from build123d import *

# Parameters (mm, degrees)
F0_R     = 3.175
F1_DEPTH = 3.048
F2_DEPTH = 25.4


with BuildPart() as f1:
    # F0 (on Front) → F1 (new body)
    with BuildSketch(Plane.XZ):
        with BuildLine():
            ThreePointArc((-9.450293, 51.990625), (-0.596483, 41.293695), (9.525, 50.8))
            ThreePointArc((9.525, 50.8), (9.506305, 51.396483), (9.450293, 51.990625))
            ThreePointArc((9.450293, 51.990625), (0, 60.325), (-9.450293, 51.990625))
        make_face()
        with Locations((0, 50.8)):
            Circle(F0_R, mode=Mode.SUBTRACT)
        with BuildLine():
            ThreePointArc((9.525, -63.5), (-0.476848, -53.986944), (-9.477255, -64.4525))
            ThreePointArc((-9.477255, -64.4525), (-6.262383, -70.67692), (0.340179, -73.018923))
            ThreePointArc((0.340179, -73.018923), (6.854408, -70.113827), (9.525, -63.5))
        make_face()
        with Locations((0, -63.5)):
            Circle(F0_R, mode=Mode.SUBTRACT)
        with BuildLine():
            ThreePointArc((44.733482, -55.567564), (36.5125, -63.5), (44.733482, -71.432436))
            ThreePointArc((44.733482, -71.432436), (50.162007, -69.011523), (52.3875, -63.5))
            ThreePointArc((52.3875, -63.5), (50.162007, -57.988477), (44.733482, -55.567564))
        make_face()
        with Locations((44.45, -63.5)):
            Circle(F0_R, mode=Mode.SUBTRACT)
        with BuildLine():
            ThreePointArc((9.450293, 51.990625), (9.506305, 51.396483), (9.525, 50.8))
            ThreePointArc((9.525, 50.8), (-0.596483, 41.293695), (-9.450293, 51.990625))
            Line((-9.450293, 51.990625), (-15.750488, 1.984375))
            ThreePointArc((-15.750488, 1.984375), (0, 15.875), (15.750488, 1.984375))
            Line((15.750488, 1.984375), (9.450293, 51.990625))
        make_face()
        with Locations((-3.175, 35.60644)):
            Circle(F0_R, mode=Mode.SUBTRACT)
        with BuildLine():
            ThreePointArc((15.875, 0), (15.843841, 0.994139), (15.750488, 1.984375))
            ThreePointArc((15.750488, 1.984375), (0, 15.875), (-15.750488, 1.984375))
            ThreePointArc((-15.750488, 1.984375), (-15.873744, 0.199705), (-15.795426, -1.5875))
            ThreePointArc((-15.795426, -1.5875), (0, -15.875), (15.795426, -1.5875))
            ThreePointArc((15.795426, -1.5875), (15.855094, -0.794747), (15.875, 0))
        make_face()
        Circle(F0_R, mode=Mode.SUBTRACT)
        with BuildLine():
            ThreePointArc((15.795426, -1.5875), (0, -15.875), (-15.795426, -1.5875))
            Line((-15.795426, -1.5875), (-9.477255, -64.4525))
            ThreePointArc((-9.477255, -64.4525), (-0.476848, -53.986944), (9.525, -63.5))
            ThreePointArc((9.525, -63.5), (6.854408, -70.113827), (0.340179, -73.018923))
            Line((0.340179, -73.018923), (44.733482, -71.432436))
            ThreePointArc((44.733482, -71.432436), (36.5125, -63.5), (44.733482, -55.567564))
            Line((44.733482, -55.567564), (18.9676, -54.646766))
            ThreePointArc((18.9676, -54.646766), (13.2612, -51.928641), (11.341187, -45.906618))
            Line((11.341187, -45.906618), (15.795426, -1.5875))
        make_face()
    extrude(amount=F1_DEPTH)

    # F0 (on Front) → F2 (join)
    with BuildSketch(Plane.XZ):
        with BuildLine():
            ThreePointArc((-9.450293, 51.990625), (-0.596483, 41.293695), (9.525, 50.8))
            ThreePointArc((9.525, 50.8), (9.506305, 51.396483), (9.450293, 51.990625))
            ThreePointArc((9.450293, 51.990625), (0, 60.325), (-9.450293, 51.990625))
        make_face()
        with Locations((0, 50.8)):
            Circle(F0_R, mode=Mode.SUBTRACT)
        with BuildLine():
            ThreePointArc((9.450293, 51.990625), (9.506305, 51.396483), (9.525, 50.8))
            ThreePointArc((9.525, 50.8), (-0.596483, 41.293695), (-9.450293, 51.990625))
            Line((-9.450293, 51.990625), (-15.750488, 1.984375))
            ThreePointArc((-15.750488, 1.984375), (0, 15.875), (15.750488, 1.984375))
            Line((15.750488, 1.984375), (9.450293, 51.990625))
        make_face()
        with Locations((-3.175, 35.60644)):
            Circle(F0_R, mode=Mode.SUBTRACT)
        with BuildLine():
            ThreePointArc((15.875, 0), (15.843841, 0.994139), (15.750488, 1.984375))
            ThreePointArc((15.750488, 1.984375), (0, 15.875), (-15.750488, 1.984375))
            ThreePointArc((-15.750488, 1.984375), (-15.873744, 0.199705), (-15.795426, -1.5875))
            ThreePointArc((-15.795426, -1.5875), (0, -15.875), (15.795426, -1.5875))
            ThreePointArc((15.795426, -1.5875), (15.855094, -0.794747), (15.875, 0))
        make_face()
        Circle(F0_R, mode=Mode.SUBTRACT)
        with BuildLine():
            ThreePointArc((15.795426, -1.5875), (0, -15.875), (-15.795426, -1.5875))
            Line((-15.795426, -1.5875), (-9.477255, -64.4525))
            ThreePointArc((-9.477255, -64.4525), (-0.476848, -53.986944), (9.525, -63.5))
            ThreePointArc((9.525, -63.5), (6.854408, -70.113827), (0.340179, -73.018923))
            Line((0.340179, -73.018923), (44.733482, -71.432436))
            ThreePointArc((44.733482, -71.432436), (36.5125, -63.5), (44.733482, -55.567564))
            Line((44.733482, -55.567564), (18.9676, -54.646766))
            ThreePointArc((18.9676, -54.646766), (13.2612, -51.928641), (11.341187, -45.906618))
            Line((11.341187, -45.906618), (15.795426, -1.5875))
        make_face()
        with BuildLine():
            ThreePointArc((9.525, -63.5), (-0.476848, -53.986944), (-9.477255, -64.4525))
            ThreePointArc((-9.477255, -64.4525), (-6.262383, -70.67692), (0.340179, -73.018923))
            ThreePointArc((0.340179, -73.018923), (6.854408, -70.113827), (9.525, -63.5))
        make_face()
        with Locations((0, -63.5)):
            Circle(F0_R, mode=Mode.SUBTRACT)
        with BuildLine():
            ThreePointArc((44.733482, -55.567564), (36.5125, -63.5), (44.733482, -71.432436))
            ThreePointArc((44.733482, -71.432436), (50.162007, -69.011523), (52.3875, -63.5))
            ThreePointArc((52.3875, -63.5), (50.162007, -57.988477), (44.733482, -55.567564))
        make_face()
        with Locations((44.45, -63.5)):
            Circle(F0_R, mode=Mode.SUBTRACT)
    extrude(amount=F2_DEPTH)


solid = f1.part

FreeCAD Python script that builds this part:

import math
import FreeCAD as App
import Part
import Sketcher
from FreeCAD import Vector
Q = App.Units.Quantity

doc = App.newDocument("Part")
body = doc.addObject("PartDesign::Body", "Body")

sketch1 = doc.addObject("Sketcher::SketchObject", "Sketch")
body.addObject(sketch1)
sketch1.AttachmentSupport = (doc.XZ_Plane, [""])
sketch1.MapMode = "FlatFace"
sketch1.addGeometry([
    Part.ArcOfCircle(Part.Circle(Vector(0, 50.8, 0), Vector(0, 0, 1), 9.525), math.radians(7.180756), math.radians(172.819244)),
    Part.LineSegment(Vector(-9.450293, 51.990625, 0), Vector(-15.750488, 1.984375, 0)),
    Part.ArcOfCircle(Part.Circle(Vector(-0.000015, -0.000003, 0), Vector(0, 0, 1), 15.874985), math.radians(172.819227), math.radians(185.739165)),
    Part.LineSegment(Vector(-15.795426, -1.5875, 0), Vector(-9.477255, -64.4525, 0)),
    Part.ArcOfCircle(Part.Circle(Vector(-0.000001, -63.500001, 0), Vector(0, 0, 1), 9.524999), math.radians(-174.260832), math.radians(-87.953281)),
    Part.LineSegment(Vector(0.340179, -73.018923, 0), Vector(44.733482, -71.432436, 0)),
    Part.ArcOfCircle(Part.Circle(Vector(44.450001, -63.500001, 0), Vector(0, 0, 1), 7.937499), math.radians(-87.953294), math.radians(0.000005)),
    Part.ArcOfCircle(Part.Circle(Vector(44.450001, -63.499999, 0), Vector(0, 0, 1), 7.937499), math.radians(-0.000005), math.radians(87.953294)),
    Part.LineSegment(Vector(44.733482, -55.567564, 0), Vector(18.9676, -54.646766, 0)),
    Part.ArcOfCircle(Part.Circle(Vector(19.251535, -46.701639, 0), Vector(0, 0, 1), 7.950199), math.radians(174.260822), math.radians(267.953292)),
    Part.LineSegment(Vector(11.341187, -45.906618, 0), Vector(15.795426, -1.5875, 0)),
    Part.ArcOfCircle(Part.Circle(Vector(-0.000084, 0, 0), Vector(0, 0, 1), 15.875084), math.radians(-5.73914), math.radians(0)),
    Part.ArcOfCircle(Part.Circle(Vector(-0.000171, -0.000013, 0), Vector(0, 0, 1), 15.875171), math.radians(0.000047), math.radians(7.180725)),
    Part.LineSegment(Vector(15.750488, 1.984375, 0), Vector(9.450293, 51.990625, 0)),
    Part.Circle(Vector(0, 0, 0), Vector(0, 0, 1), 3.175),
    Part.Circle(Vector(-3.175, 35.60644, 0), Vector(0, 0, 1), 3.175),
    Part.Circle(Vector(0, 50.8, 0), Vector(0, 0, 1), 3.175),
    Part.Circle(Vector(0, -63.5, 0), Vector(0, 0, 1), 3.175),
    Part.Circle(Vector(44.45, -63.5, 0), Vector(0, 0, 1), 3.175),
], False)
sketch1.addConstraint([
    Sketcher.Constraint("Coincident", 0, 2, 1, 1),
    Sketcher.Constraint("Coincident", 1, 2, 2, 1),
    Sketcher.Constraint("Coincident", 2, 2, 3, 1),
    Sketcher.Constraint("Coincident", 3, 2, 4, 1),
    Sketcher.Constraint("Coincident", 4, 2, 5, 1),
    Sketcher.Constraint("Coincident", 5, 2, 6, 1),
    Sketcher.Constraint("Coincident", 6, 2, 7, 1),
    Sketcher.Constraint("Coincident", 7, 2, 8, 1),
    Sketcher.Constraint("Coincident", 8, 2, 9, 2),
    Sketcher.Constraint("Coincident", 9, 1, 10, 1),
    Sketcher.Constraint("Coincident", 10, 2, 11, 1),
    Sketcher.Constraint("Coincident", 11, 2, 12, 1),
    Sketcher.Constraint("Coincident", 12, 2, 13, 1),
    Sketcher.Constraint("Coincident", 13, 2, 0, 1),
    Sketcher.Constraint("Coincident", 14, 3, -1, 1),
    Sketcher.Constraint("Coincident", 7, 3, 6, 3),
    Sketcher.Constraint("Coincident", 16, 3, 0, 3),
    Sketcher.Constraint("Coincident", 17, 3, 4, 3),
    Sketcher.Constraint("Coincident", 18, 3, 6, 3),
    Sketcher.Constraint("PointOnObject", 0, 3, -2),
    Sketcher.Constraint("PointOnObject", 4, 3, -2),
    Sketcher.Constraint("PointOnObject", 11, 3, -1),
    Sketcher.Constraint("PointOnObject", 11, 2, -1),
    Sketcher.Constraint("Diameter", 14, Q("0.25 in")),
    Sketcher.Constraint("Diameter", 15, Q("0.25 in")),
    Sketcher.Constraint("Diameter", 16, Q("0.25 in")),
    Sketcher.Constraint("Diameter", 17, Q("0.25 in")),
    Sketcher.Constraint("Diameter", 18, Q("0.25 in")),
    Sketcher.Constraint("DistanceY", -1, 1, 0, 3, Q("2 in")),
    Sketcher.Constraint("Radius", 0, Q("0.375 in")),
    Sketcher.Constraint("Radius", 4, Q("0.375 in")),
    Sketcher.Constraint("Radius", 6, Q("0.3125 in")),
    Sketcher.Constraint("Radius", 9, Q("0.313 in")),
    Sketcher.Constraint("DistanceY", 2, 3, 0, 3, Q("2.0000001 in")),
    Sketcher.Constraint("DistanceY", 4, 3, -1, 1, Q("2.5 in")),
    Sketcher.Constraint("DistanceY", 6, 3, -1, 1, Q("2.5 in")),
    Sketcher.Constraint("DistanceY", 6, 2, -1, 1, Q("2.5 in")),
    Sketcher.Constraint("DistanceX", -1, 1, 6, 3, Q("1.75 in")),
    Sketcher.Constraint("DistanceX", 15, 3, -1, 1, Q("0.125 in")),
    Sketcher.Constraint("DistanceY", -1, 1, 0, 2, Q("2.046875 in")),
    Sketcher.Constraint("DistanceY", -1, 1, 1, 2, Q("0.078125 in")),
    Sketcher.Constraint("DistanceY", 2, 2, -1, 1, Q("0.0625 in")),
    Sketcher.Constraint("DistanceY", 10, 2, -1, 1, Q("0.0625 in")),
    Sketcher.Constraint("DistanceX", -1, 1, 11, 2, Q("0.625 in")),
    Sketcher.Constraint("DistanceY", -1, 1, 12, 2, Q("0.078125 in")),
    Sketcher.Constraint("DistanceY", -1, 1, 13, 2, Q("2.046875 in")),
    Sketcher.Constraint("Radius", 12, Q("15.875171 mm")),
    Sketcher.Constraint("DistanceY", 3, 2, -1, 1, Q("2.5375 in")),
    Sketcher.Constraint("Radius", 2, Q("15.874985 mm")),
    Sketcher.Constraint("Radius", 11, Q("15.875084 mm")),
    Sketcher.Constraint("DistanceY", 9, 3, 9, 1, Q("0.0313 in")),
    Sketcher.Constraint("DistanceX", -1, 1, 8, 2, Q("18.9676 mm")),
    Sketcher.Constraint("Distance", 8, Q("25.78233 mm")),
    Sketcher.Constraint("Distance", 10, Q("44.54239 mm")),
    Sketcher.Constraint("DistanceY", 9, 3, -1, 1, Q("46.701639 mm")),
    Sketcher.Constraint("DistanceY", -1, 1, 15, 3, Q("35.60644 mm")),
    Sketcher.Constraint("DistanceX", 1, 2, -1, 1, Q("15.750488 mm")),
    Sketcher.Constraint("DistanceX", -1, 1, 4, 2, Q("0.340179 mm")),
    Sketcher.Constraint("DistanceX", -1, 1, 12, 2, Q("15.750488 mm")),
    Sketcher.Constraint("DistanceX", 6, 3, 5, 2, Q("0.283481 mm")),
])
pad1 = doc.addObject("PartDesign::Pad", "Pad")
body.addObject(pad1)
pad1.Profile = sketch1
pad1.Length = Q("0.12 in")

sketch2 = doc.addObject("Sketcher::SketchObject", "Sketch001")
body.addObject(sketch2)
sketch2.AttachmentSupport = (doc.XZ_Plane, [""])
sketch2.MapMode = "FlatFace"
sketch2.addGeometry([
    Part.ArcOfCircle(Part.Circle(Vector(0, 50.8, 0), Vector(0, 0, 1), 9.525), math.radians(7.180756), math.radians(172.819244)),
    Part.LineSegment(Vector(-9.450293, 51.990625, 0), Vector(-15.750488, 1.984375, 0)),
    Part.ArcOfCircle(Part.Circle(Vector(-0.000015, -0.000003, 0), Vector(0, 0, 1), 15.874985), math.radians(172.819227), math.radians(185.739165)),
    Part.LineSegment(Vector(-15.795426, -1.5875, 0), Vector(-9.477255, -64.4525, 0)),
    Part.ArcOfCircle(Part.Circle(Vector(-0.000001, -63.500001, 0), Vector(0, 0, 1), 9.524999), math.radians(-174.260832), math.radians(-87.953281)),
    Part.LineSegment(Vector(0.340179, -73.018923, 0), Vector(44.733482, -71.432436, 0)),
    Part.ArcOfCircle(Part.Circle(Vector(44.450001, -63.500001, 0), Vector(0, 0, 1), 7.937499), math.radians(-87.953294), math.radians(0.000005)),
    Part.ArcOfCircle(Part.Circle(Vector(44.450001, -63.499999, 0), Vector(0, 0, 1), 7.937499), math.radians(-0.000005), math.radians(87.953294)),
    Part.LineSegment(Vector(44.733482, -55.567564, 0), Vector(18.9676, -54.646766, 0)),
    Part.ArcOfCircle(Part.Circle(Vector(19.251535, -46.701639, 0), Vector(0, 0, 1), 7.950199), math.radians(174.260822), math.radians(267.953292)),
    Part.LineSegment(Vector(11.341187, -45.906618, 0), Vector(15.795426, -1.5875, 0)),
    Part.ArcOfCircle(Part.Circle(Vector(-0.000084, 0, 0), Vector(0, 0, 1), 15.875084), math.radians(-5.73914), math.radians(0)),
    Part.ArcOfCircle(Part.Circle(Vector(-0.000171, -0.000013, 0), Vector(0, 0, 1), 15.875171), math.radians(0.000047), math.radians(7.180725)),
    Part.LineSegment(Vector(15.750488, 1.984375, 0), Vector(9.450293, 51.990625, 0)),
    Part.Circle(Vector(0, -63.5, 0), Vector(0, 0, 1), 3.175),
    Part.Circle(Vector(44.45, -63.5, 0), Vector(0, 0, 1), 3.175),
    Part.Circle(Vector(0, 0, 0), Vector(0, 0, 1), 3.175),
    Part.Circle(Vector(-3.175, 35.60644, 0), Vector(0, 0, 1), 3.175),
    Part.Circle(Vector(0, 50.8, 0), Vector(0, 0, 1), 3.175),
], False)
sketch2.addConstraint([
    Sketcher.Constraint("Coincident", 0, 2, 1, 1),
    Sketcher.Constraint("Coincident", 1, 2, 2, 1),
    Sketcher.Constraint("Coincident", 2, 2, 3, 1),
    Sketcher.Constraint("Coincident", 3, 2, 4, 1),
    Sketcher.Constraint("Coincident", 4, 2, 5, 1),
    Sketcher.Constraint("Coincident", 5, 2, 6, 1),
    Sketcher.Constraint("Coincident", 6, 2, 7, 1),
    Sketcher.Constraint("Coincident", 7, 2, 8, 1),
    Sketcher.Constraint("Coincident", 8, 2, 9, 2),
    Sketcher.Constraint("Coincident", 9, 1, 10, 1),
    Sketcher.Constraint("Coincident", 10, 2, 11, 1),
    Sketcher.Constraint("Coincident", 11, 2, 12, 1),
    Sketcher.Constraint("Coincident", 12, 2, 13, 1),
    Sketcher.Constraint("Coincident", 13, 2, 0, 1),
    Sketcher.Constraint("Coincident", 16, 3, -1, 1),
    Sketcher.Constraint("Coincident", 7, 3, 6, 3),
    Sketcher.Constraint("Coincident", 14, 3, 4, 3),
    Sketcher.Constraint("Coincident", 15, 3, 6, 3),
    Sketcher.Constraint("Coincident", 18, 3, 0, 3),
    Sketcher.Constraint("PointOnObject", 0, 3, -2),
    Sketcher.Constraint("PointOnObject", 4, 3, -2),
    Sketcher.Constraint("PointOnObject", 11, 3, -1),
    Sketcher.Constraint("PointOnObject", 11, 2, -1),
    Sketcher.Constraint("Diameter", 14, Q("0.25 in")),
    Sketcher.Constraint("Diameter", 15, Q("0.25 in")),
    Sketcher.Constraint("Diameter", 16, Q("0.25 in")),
    Sketcher.Constraint("Diameter", 17, Q("0.25 in")),
    Sketcher.Constraint("Diameter", 18, Q("0.25 in")),
    Sketcher.Constraint("DistanceY", -1, 1, 0, 3, Q("2 in")),
    Sketcher.Constraint("Radius", 0, Q("0.375 in")),
    Sketcher.Constraint("Radius", 4, Q("0.375 in")),
    Sketcher.Constraint("Radius", 6, Q("0.3125 in")),
    Sketcher.Constraint("Radius", 9, Q("0.313 in")),
    Sketcher.Constraint("DistanceY", 2, 3, 0, 3, Q("2.0000001 in")),
    Sketcher.Constraint("DistanceY", 4, 3, -1, 1, Q("2.5 in")),
    Sketcher.Constraint("DistanceY", 6, 3, -1, 1, Q("2.5 in")),
    Sketcher.Constraint("DistanceY", 6, 2, -1, 1, Q("2.5 in")),
    Sketcher.Constraint("DistanceX", -1, 1, 6, 3, Q("1.75 in")),
    Sketcher.Constraint("DistanceX", 17, 3, -1, 1, Q("0.125 in")),
    Sketcher.Constraint("DistanceY", -1, 1, 0, 2, Q("2.046875 in")),
    Sketcher.Constraint("DistanceY", -1, 1, 1, 2, Q("0.078125 in")),
    Sketcher.Constraint("DistanceY", 2, 2, -1, 1, Q("0.0625 in")),
    Sketcher.Constraint("DistanceY", 10, 2, -1, 1, Q("0.0625 in")),
    Sketcher.Constraint("DistanceX", -1, 1, 11, 2, Q("0.625 in")),
    Sketcher.Constraint("DistanceY", -1, 1, 12, 2, Q("0.078125 in")),
    Sketcher.Constraint("DistanceY", -1, 1, 13, 2, Q("2.046875 in")),
    Sketcher.Constraint("Radius", 12, Q("15.875171 mm")),
    Sketcher.Constraint("DistanceY", 3, 2, -1, 1, Q("2.5375 in")),
    Sketcher.Constraint("Radius", 2, Q("15.874985 mm")),
    Sketcher.Constraint("Radius", 11, Q("15.875084 mm")),
    Sketcher.Constraint("DistanceY", 9, 3, 9, 1, Q("0.0313 in")),
    Sketcher.Constraint("DistanceX", -1, 1, 8, 2, Q("18.9676 mm")),
    Sketcher.Constraint("Distance", 8, Q("25.78233 mm")),
    Sketcher.Constraint("Distance", 10, Q("44.54239 mm")),
    Sketcher.Constraint("DistanceY", 9, 3, -1, 1, Q("46.701639 mm")),
    Sketcher.Constraint("DistanceY", -1, 1, 17, 3, Q("35.60644 mm")),
    Sketcher.Constraint("DistanceX", 1, 2, -1, 1, Q("15.750488 mm")),
    Sketcher.Constraint("DistanceX", -1, 1, 4, 2, Q("0.340179 mm")),
    Sketcher.Constraint("DistanceX", -1, 1, 12, 2, Q("15.750488 mm")),
    Sketcher.Constraint("DistanceX", 6, 3, 5, 2, Q("0.283481 mm")),
])
pad2 = doc.addObject("PartDesign::Pad", "Pad001")
body.addObject(pad2)
pad2.Profile = sketch2
pad2.Length = Q("1 in")

doc.recompute()
